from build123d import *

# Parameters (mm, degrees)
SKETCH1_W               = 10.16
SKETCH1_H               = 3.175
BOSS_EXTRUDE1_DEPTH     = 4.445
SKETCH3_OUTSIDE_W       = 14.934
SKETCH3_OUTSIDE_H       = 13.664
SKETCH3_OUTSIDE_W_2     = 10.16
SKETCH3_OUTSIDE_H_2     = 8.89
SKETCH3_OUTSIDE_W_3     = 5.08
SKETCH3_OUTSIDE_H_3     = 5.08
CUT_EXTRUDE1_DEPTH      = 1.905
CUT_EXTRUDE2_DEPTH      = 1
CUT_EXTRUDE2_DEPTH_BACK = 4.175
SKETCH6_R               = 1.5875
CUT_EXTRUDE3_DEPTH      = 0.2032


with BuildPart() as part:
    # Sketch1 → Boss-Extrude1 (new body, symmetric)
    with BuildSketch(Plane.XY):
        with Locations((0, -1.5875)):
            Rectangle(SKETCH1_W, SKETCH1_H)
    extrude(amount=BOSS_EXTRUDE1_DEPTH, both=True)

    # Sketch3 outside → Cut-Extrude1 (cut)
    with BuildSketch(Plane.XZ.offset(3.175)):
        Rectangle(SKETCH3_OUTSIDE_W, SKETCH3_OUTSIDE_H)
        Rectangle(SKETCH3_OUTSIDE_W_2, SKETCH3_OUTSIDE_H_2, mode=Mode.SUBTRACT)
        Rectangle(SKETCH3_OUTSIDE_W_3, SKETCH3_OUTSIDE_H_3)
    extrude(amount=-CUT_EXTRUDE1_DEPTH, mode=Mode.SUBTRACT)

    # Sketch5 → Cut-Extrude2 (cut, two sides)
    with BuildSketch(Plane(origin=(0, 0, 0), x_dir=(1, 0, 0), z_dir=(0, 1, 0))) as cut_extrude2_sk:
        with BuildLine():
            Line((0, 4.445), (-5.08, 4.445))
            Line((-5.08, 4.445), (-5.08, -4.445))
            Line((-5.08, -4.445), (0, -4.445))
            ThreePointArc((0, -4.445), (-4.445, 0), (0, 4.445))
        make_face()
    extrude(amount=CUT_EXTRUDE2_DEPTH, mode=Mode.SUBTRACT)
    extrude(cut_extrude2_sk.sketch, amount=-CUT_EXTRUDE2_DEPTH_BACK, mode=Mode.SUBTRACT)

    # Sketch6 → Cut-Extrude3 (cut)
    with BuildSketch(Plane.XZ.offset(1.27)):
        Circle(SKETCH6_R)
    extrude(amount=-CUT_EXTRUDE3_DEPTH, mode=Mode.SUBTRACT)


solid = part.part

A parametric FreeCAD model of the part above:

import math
import FreeCAD as App
import Part
import Sketcher
Q = App.Units.Quantity

doc = App.newDocument("Part")
body = doc.addObject("PartDesign::Body", "Body")

sketch1 = body.newObject("Sketcher::SketchObject", "Sketch")
sketch1.AttachmentSupport = (doc.getObject("XY_Plane"), [""])
sketch1.MapMode = "FlatFace"
sketch1.addGeometry(Part.LineSegment(App.Vector(-5.1, 0, 0), App.Vector(-5.1, -3.2, 0)), False)
sketch1.addGeometry(Part.LineSegment(App.Vector(-5.1, -3.2, 0), App.Vector(5.1, -3.2, 0)), False)
sketch1.addGeometry(Part.LineSegment(App.Vector(5.1, -3.2, 0), App.Vector(5.1, 0, 0)), False)
sketch1.addGeometry(Part.LineSegment(App.Vector(5.1, 0, 0), App.Vector(-5.1, 0, 0)), False)
sketch1.addConstraint(Sketcher.Constraint("Coincident", 0, 2, 1, 1))
sketch1.addConstraint(Sketcher.Constraint("Coincident", 1, 2, 2, 1))
sketch1.addConstraint(Sketcher.Constraint("Coincident", 2, 2, 3, 1))
sketch1.addConstraint(Sketcher.Constraint("Coincident", 3, 2, 0, 1))
sketch1.addConstraint(Sketcher.Constraint("Vertical", 0))
sketch1.addConstraint(Sketcher.Constraint("Horizontal", 1))
sketch1.addConstraint(Sketcher.Constraint("Vertical", 2))
sketch1.addConstraint(Sketcher.Constraint("Horizontal", 3))
sketch1.addConstraint(Sketcher.Constraint("Symmetric", 2, 2, 3, 2, -1, 1))
sketch1.addConstraint(Sketcher.Constraint("DistanceX", 1, 1, 1, 2, Q("0.4 in")))
sketch1.addConstraint(Sketcher.Constraint("DistanceY", 0, 2, 0, 1, Q("0.125 in")))
pad1 = body.newObject("PartDesign::Pad", "Pad")
pad1.Profile = sketch1
pad1.Length = Q("0.35 in")
pad1.Midplane = True

sketch2 = body.newObject("Sketcher::SketchObject", "Sketch001")
sketch2.AttachmentSupport = (doc.getObject("XZ_Plane"), [""])
sketch2.MapMode = "FlatFace"
sketch2.AttachmentOffset = App.Placement(App.Vector(0, 0, 0.125 * 25.4), App.Rotation())
sketch2.addGeometry(Part.LineSegment(App.Vector(-7, 7, 0), App.Vector(-7, -7, 0)), False)
sketch2.addGeometry(Part.LineSegment(App.Vector(-7, -7, 0), App.Vector(7, -7, 0)), False)
sketch2.addGeometry(Part.LineSegment(App.Vector(7, -7, 0), App.Vector(7, 7, 0)), False)
sketch2.addGeometry(Part.LineSegment(App.Vector(7, 7, 0), App.Vector(-7, 7, 0)), False)
sketch2.addGeometry(Part.LineSegment(App.Vector(5, -4, 0), App.Vector(-5, -4, 0)), False)
sketch2.addGeometry(Part.LineSegment(App.Vector(-5, -4, 0), App.Vector(-5, 4, 0)), False)
sketch2.addGeometry(Part.LineSegment(App.Vector(-5, 4, 0), App.Vector(5, 4, 0)), False)
sketch2.addGeometry(Part.LineSegment(App.Vector(5, 4, 0), App.Vector(5, -4, 0)), False)
sketch2.addGeometry(Part.LineSegment(App.Vector(-3, 3, 0), App.Vector(-3, -3, 0)), False)
sketch2.addGeometry(Part.LineSegment(App.Vector(-3, -3, 0), App.Vector(3, -3, 0)), False)
sketch2.addGeometry(Part.LineSegment(App.Vector(3, -3, 0), App.Vector(3, 3, 0)), False)
sketch2.addGeometry(Part.LineSegment(App.Vector(3, 3, 0), App.Vector(-3, 3, 0)), False)
sketch2.addConstraint(Sketcher.Constraint("Coincident", 0, 2, 1, 1))
sketch2.addConstraint(Sketcher.Constraint("Coincident", 1, 2, 2, 1))
sketch2.addConstraint(Sketcher.Constraint("Coincident", 2, 2, 3, 1))
sketch2.addConstraint(Sketcher.Constraint("Coincident", 3, 2, 0, 1))
sketch2.addConstraint(Sketcher.Constraint("Coincident", 4, 2, 5, 1))
sketch2.addConstraint(Sketcher.Constraint("Coincident", 5, 2, 6, 1))
sketch2.addConstraint(Sketcher.Constraint("Coincident", 6, 2, 7, 1))
sketch2.addConstraint(Sketcher.Constraint("Coincident", 7, 2, 4, 1))
sketch2.addConstraint(Sketcher.Constraint("Coincident", 8, 2, 9, 1))
sketch2.addConstraint(Sketcher.Constraint("Coincident", 9, 2, 10, 1))
sketch2.addConstraint(Sketcher.Constraint("Coincident", 10, 2, 11, 1))
sketch2.addConstraint(Sketcher.Constraint("Coincident", 11, 2, 8, 1))
sketch2.addConstraint(Sketcher.Constraint("Vertical", 0))
sketch2.addConstraint(Sketcher.Constraint("Horizontal", 1))
sketch2.addConstraint(Sketcher.Constraint("Vertical", 2))
sketch2.addConstraint(Sketcher.Constraint("Horizontal", 3))
sketch2.addConstraint(Sketcher.Constraint("Horizontal", 4))
sketch2.addConstraint(Sketcher.Constraint("Vertical", 5))
sketch2.addConstraint(Sketcher.Constraint("Horizontal", 6))
sketch2.addConstraint(Sketcher.Constraint("Vertical", 7))
sketch2.addConstraint(Sketcher.Constraint("Vertical", 8))
sketch2.addConstraint(Sketcher.Constraint("Horizontal", 9))
sketch2.addConstraint(Sketcher.Constraint("Vertical", 10))
sketch2.addConstraint(Sketcher.Constraint("Horizontal", 11))
sketch2.addConstraint(Sketcher.Constraint("Symmetric", 0, 2, 2, 2, -1, 1))
sketch2.addConstraint(Sketcher.Constraint("Symmetric", 4, 2, 6, 2, -1, 1))
sketch2.addConstraint(Sketcher.Constraint("Symmetric", 8, 2, 10, 2, -1, 1))
sketch2.addConstraint(Sketcher.Constraint("Equal", 11, 8))
sketch2.addConstraint(Sketcher.Constraint("DistanceX", 4, 2, 4, 1, Q("0.4 in")))
sketch2.addConstraint(Sketcher.Constraint("DistanceX", 9, 1, 9, 2, Q("0.2 in")))
sketch2.addConstraint(Sketcher.Constraint("DistanceY", 5, 1, 5, 2, Q("0.35 in")))
sketch2.addConstraint(Sketcher.Constraint("DistanceX", 1, 1, 1, 2, 14.934))
sketch2.addConstraint(Sketcher.Constraint("DistanceY", 0, 2, 0, 1, 13.664))
pocket1 = body.newObject("PartDesign::Pocket", "Pocket")
pocket1.Profile = sketch2
pocket1.Length = Q("0.075 in")

sketch3 = body.newObject("Sketcher::SketchObject", "Sketch002")
sketch3.AttachmentSupport = (doc.getObject("XZ_Plane"), [""])
sketch3.MapMode = "FlatFace"
sketch3.addGeometry(Part.LineSegment(App.Vector(0, -4.4, 0), App.Vector(-5.1, -4.4, 0)), False)
sketch3.addGeometry(Part.LineSegment(App.Vector(-5.1, -4.4, 0), App.Vector(-5.1, 4.4, 0)), False)
sketch3.addGeometry(Part.LineSegment(App.Vector(-5.1, 4.4, 0), App.Vector(0, 4.4, 0)), False)
sketch3.addGeometry(Part.ArcOfCircle(Part.Circle(App.Vector(0, 0, 0), App.Vector(0, 0, 1), 4.4), math.radians(90), math.radians(270)), False)
sketch3.addConstraint(Sketcher.Constraint("Coincident", 0, 2, 1, 1))
sketch3.addConstraint(Sketcher.Constraint("Coincident", 1, 2, 2, 1))
sketch3.addConstraint(Sketcher.Constraint("Tangent", 2, 2, 3, 1))
sketch3.addConstraint(Sketcher.Constraint("Tangent", 3, 2, 0, 1))
sketch3.addConstraint(Sketcher.Constraint("Horizontal", 0))
sketch3.addConstraint(Sketcher.Constraint("Vertical", 1))
sketch3.addConstraint(Sketcher.Constraint("Horizontal", 2))
sketch3.addConstraint(Sketcher.Constraint("Coincident", 3, 3, -1, 1))
sketch3.addConstraint(Sketcher.Constraint("DistanceX", 0, 2, 0, 1, Q("0.2 in")))
sketch3.addConstraint(Sketcher.Constraint("Radius", 3, Q("0.175 in")))
pocket2 = body.newObject("PartDesign::Pocket", "Pocket001")
pocket2.Profile = sketch3
pocket2.Type = "ThroughAll"
pocket2.Midplane = True

sketch4 = body.newObject("Sketcher::SketchObject", "Sketch003")
sketch4.AttachmentSupport = (doc.getObject("XZ_Plane"), [""])
sketch4.MapMode = "FlatFace"
sketch4.AttachmentOffset = App.Placement(App.Vector(0, 0, 0.05 * 25.4), App.Rotation())
sketch4.addGeometry(Part.Circle(App.Vector(0, 0, 0), App.Vector(0, 0, 1), 1.6), False)
sketch4.addConstraint(Sketcher.Constraint("Coincident", 0, 3, -1, 1))
sketch4.addConstraint(Sketcher.Constraint("Diameter", 0, Q("0.125 in")))
pocket3 = body.newObject("PartDesign::Pocket", "Pocket002")
pocket3.Profile = sketch4
pocket3.Length = Q("0.008 in")

doc.recompute()
